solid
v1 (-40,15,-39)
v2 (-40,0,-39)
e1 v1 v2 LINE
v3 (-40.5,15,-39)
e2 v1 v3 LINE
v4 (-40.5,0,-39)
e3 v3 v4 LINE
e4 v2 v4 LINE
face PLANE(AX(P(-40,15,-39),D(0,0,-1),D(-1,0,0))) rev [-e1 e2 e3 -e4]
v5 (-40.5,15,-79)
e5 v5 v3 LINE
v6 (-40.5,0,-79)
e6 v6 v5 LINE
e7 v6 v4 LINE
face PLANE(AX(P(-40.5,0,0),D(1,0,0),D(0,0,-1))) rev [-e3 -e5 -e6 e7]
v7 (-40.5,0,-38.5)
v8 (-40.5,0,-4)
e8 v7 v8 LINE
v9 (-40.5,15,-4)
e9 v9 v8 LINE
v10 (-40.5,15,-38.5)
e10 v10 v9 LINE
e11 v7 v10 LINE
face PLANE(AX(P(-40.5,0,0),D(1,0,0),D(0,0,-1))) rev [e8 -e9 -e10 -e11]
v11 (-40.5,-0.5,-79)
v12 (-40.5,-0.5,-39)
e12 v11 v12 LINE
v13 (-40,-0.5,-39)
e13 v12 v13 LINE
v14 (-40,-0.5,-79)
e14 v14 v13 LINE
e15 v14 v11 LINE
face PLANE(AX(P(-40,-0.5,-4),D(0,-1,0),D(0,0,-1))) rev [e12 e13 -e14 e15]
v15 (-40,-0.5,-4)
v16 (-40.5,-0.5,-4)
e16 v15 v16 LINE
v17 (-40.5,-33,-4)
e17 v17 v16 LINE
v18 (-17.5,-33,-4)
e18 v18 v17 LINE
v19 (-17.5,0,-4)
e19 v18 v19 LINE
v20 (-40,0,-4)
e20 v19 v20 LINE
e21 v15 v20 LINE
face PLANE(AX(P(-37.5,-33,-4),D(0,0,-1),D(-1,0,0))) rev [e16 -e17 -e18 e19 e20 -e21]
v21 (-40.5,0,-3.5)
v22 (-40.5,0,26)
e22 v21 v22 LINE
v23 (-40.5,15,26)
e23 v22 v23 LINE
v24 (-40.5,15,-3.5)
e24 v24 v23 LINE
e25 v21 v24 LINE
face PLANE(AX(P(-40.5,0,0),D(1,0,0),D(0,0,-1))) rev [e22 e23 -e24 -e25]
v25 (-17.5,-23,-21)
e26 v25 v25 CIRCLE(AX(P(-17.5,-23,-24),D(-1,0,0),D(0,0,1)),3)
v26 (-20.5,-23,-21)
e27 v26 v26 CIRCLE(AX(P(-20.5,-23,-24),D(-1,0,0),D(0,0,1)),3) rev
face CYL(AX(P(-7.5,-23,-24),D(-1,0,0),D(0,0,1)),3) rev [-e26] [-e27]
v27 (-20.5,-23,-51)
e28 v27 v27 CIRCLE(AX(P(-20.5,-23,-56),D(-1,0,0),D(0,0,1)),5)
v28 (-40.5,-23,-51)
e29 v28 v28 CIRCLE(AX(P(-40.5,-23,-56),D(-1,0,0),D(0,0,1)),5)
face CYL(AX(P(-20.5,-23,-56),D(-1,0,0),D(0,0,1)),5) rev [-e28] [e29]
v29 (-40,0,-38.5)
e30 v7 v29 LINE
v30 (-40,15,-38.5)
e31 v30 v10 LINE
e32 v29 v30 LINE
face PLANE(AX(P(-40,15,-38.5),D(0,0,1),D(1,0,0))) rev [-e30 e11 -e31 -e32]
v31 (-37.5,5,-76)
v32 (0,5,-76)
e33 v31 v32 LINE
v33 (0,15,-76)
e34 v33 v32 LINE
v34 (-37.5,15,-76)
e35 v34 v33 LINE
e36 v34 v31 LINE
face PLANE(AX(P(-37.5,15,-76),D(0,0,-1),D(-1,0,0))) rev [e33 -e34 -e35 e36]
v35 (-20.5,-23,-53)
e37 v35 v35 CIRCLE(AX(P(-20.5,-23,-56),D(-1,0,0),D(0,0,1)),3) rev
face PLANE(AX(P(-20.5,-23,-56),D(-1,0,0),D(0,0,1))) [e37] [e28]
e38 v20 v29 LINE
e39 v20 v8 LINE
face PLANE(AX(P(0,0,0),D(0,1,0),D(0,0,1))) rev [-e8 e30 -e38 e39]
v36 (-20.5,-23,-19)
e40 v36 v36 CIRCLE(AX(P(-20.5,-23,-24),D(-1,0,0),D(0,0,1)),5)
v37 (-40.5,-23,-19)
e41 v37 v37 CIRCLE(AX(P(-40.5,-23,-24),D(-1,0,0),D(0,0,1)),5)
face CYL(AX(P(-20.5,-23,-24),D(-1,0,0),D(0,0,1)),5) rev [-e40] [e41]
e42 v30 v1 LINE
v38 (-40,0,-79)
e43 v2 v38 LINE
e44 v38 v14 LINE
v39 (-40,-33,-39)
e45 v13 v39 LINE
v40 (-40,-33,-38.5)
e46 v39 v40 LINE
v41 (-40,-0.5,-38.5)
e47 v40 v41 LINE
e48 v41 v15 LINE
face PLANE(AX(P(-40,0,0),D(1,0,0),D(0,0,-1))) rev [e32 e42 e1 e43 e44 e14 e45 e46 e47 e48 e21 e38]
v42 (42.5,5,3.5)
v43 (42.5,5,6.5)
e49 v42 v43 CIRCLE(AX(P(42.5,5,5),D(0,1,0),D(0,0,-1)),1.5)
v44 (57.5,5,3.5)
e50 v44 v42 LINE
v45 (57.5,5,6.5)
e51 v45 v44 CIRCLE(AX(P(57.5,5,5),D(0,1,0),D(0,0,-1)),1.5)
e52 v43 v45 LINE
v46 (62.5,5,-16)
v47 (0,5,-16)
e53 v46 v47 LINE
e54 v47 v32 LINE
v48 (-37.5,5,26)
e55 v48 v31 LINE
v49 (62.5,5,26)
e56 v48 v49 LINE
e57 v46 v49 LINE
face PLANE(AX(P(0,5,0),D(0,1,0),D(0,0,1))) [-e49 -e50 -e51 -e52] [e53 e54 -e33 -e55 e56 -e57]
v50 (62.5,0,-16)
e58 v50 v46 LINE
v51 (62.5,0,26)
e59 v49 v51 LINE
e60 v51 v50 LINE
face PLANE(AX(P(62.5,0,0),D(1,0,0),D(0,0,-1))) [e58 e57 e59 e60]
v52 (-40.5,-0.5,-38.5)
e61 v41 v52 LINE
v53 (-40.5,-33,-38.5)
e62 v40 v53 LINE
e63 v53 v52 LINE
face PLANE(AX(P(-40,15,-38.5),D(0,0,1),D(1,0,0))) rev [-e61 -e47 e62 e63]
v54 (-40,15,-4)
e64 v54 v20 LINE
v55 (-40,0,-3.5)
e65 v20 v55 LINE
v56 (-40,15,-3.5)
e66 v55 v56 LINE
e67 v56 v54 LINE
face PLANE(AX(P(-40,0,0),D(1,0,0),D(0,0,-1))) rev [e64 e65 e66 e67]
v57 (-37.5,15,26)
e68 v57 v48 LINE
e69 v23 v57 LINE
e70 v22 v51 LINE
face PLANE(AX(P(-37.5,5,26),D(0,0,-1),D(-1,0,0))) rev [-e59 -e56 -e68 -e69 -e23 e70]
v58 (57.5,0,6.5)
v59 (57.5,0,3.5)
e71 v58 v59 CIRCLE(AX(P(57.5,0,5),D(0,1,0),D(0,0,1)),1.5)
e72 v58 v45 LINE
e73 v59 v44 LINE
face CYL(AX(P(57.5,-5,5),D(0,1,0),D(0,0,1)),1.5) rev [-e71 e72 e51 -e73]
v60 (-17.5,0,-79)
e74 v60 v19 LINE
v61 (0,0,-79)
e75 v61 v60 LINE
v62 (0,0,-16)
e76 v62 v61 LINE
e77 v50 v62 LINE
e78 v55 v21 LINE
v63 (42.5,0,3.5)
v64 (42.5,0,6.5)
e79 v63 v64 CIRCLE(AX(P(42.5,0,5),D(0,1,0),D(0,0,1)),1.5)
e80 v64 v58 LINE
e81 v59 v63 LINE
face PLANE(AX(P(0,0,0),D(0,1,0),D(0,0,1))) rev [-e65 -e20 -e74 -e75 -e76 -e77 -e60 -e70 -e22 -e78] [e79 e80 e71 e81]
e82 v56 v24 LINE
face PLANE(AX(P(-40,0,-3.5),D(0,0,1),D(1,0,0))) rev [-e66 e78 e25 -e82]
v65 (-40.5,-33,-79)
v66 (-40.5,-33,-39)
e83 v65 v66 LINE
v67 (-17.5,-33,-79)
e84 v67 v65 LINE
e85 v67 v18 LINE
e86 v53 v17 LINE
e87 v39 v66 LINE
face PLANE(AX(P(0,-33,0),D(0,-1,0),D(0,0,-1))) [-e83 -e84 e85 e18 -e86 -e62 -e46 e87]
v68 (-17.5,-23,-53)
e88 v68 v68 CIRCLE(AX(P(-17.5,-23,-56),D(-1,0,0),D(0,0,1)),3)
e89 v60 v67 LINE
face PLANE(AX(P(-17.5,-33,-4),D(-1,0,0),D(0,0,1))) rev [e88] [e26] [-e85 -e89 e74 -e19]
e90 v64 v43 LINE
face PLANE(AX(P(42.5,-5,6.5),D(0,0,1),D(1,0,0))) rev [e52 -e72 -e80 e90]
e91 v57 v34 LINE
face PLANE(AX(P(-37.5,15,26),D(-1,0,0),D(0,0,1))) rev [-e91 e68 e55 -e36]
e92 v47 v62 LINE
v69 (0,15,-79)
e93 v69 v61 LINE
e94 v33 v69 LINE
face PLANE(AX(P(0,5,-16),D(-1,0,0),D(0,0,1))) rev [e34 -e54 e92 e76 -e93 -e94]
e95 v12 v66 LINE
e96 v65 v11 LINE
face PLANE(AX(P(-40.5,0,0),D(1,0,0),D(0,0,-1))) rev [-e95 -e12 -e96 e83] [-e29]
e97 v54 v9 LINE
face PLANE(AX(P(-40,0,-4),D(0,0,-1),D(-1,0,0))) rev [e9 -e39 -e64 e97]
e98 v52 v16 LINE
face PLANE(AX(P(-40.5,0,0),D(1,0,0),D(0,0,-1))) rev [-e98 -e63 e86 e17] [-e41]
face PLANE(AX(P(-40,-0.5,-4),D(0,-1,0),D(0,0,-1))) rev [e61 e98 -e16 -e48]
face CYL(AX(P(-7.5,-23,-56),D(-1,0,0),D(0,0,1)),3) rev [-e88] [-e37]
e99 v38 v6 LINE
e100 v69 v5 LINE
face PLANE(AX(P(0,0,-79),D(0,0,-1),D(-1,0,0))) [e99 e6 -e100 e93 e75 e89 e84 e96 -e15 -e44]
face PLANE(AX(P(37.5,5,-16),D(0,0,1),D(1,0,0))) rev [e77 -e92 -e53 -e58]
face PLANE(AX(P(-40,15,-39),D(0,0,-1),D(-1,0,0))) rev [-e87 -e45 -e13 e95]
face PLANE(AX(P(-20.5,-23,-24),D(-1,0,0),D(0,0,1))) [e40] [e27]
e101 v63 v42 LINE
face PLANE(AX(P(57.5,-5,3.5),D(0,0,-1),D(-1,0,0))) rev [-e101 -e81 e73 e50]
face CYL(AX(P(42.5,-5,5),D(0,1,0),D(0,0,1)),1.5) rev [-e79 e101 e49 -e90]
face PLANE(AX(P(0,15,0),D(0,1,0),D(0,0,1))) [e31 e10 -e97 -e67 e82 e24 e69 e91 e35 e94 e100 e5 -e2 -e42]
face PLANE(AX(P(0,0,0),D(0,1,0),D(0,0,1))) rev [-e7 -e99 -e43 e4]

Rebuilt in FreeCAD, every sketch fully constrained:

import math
import FreeCAD as App
import Part
import Sketcher

V = App.Vector
Q = App.Units.Quantity


def add_polygon(sketch, points):
    """Adds a closed chain of lines whose ends are joined by coincident constraints."""
    first, n = sketch.GeometryCount, len(points)
    for a, b in zip(points, points[1:] + points[:1]):
        sketch.addGeometry(Part.LineSegment(App.Vector(*a, 0), App.Vector(*b, 0)), False)
    for i in range(n):
        sketch.addConstraint(Sketcher.Constraint("Coincident", first + i, 2, first + (i + 1) % n, 1))

doc = App.newDocument("Part")
body = doc.addObject("PartDesign::Body", "Body")

# Sketch on XZ plane
sketch1 = doc.addObject("Sketcher::SketchObject", "Sketch")
body.addObject(sketch1)
sketch1.AttachmentSupport = (doc.XZ_Plane, [""])
sketch1.MapMode = "FlatFace"
add_polygon(sketch1, [(-38, -76), (-38, 26), (38, 26), (38, -16), (0, -16), (0, -76)])  # lines 0-5
sketch1.addConstraint([
    Sketcher.Constraint("Vertical", 0),
    Sketcher.Constraint("Horizontal", 1),
    Sketcher.Constraint("Vertical", 2),
    Sketcher.Constraint("Horizontal", 3),
    Sketcher.Constraint("Vertical", 4),
    Sketcher.Constraint("Horizontal", 5),
    Sketcher.Constraint("PointOnObject", 3, 2, -2),
    Sketcher.Constraint("Equal", 3, 5),
    Sketcher.Constraint("DistanceX", 1, 1, 1, 2, Q("75 mm")),
    Sketcher.Constraint("DistanceY", 0, 1, 0, 2, Q("102 mm")),
    Sketcher.Constraint("DistanceY", 2, 2, 2, 1, Q("42 mm")),
    Sketcher.Constraint("DistanceY", -1, 1, 0, 2, Q("26 mm")),
])
pad1 = doc.addObject("PartDesign::Pad", "Pad")
body.addObject(pad1)
pad1.Profile = sketch1
pad1.Length = 5
pad1.Reversed = True

# Sketch on XZ plane
sketch2 = doc.addObject("Sketcher::SketchObject", "Sketch001")
body.addObject(sketch2)
sketch2.AttachmentSupport = (doc.XZ_Plane, [""])
sketch2.MapMode = "FlatFace"
add_polygon(sketch2, [(-38, -4), (-38, -76), (-18, -76), (-18, -4)])  # lines 0-3
sketch2.addConstraint([
    Sketcher.Constraint("Vertical", 0),
    Sketcher.Constraint("Horizontal", 1),
    Sketcher.Constraint("Vertical", 2),
    Sketcher.Constraint("Horizontal", 3),
    Sketcher.Constraint("DistanceX", 1, 1, 1, 2, Q("20 mm")),
    Sketcher.Constraint("DistanceY", 0, 2, 0, 1, Q("72 mm")),
    Sketcher.Constraint("DistanceY", 0, 2, -1, 1, Q("76 mm")),
    Sketcher.Constraint("DistanceX", 0, 2, -1, 1, Q("37.5 mm")),
])
pad2 = doc.addObject("PartDesign::Pad", "Pad001")
body.addObject(pad2)
pad2.Profile = sketch2
pad2.Length = 33

# Sketch on YZ plane
sketch3 = doc.addObject("Sketcher::SketchObject", "Sketch002")
body.addObject(sketch3)
sketch3.AttachmentSupport = (doc.YZ_Plane, [""])
sketch3.MapMode = "FlatFace"
sketch3.AttachmentOffset = App.Placement(V(0, 0, -37.5), App.Rotation())
sketch3.addGeometry([
    Part.Circle(V(-23, -56, 0), V(0, 0, 1), 3),
    Part.Circle(V(-23, -24, 0), V(0, 0, 1), 3),
], False)
sketch3.addConstraint([
    Sketcher.Constraint("Equal", 0, 1),
    Sketcher.Constraint("Vertical", 0, 3, 1, 3),
    Sketcher.Constraint("Diameter", 0, Q("6 mm")),
    Sketcher.Constraint("DistanceX", 0, 3, -1, 1, Q("23 mm")),
    Sketcher.Constraint("DistanceY", 0, 3, -1, 1, Q("56 mm")),
    Sketcher.Constraint("DistanceY", 1, 3, -1, 1, Q("24 mm")),
])
pocket1 = doc.addObject("PartDesign::Pocket", "Pocket")
body.addObject(pocket1)
pocket1.Profile = sketch3
pocket1.Length = 30
pocket1.Reversed = True

# Sketch on YZ plane
sketch4 = doc.addObject("Sketcher::SketchObject", "Sketch003")
body.addObject(sketch4)
sketch4.AttachmentSupport = (doc.YZ_Plane, [""])
sketch4.MapMode = "FlatFace"
sketch4.AttachmentOffset = App.Placement(V(0, 0, -37.5), App.Rotation())
sketch4.addGeometry([
    Part.Circle(V(-23, -56, 0), V(0, 0, 1), 5),
    Part.Circle(V(-23, -24, 0), V(0, 0, 1), 5),
], False)
sketch4.addConstraint([
    Sketcher.Constraint("Equal", 0, 1),
    Sketcher.Constraint("Vertical", 0, 3, 1, 3),
    Sketcher.Constraint("Diameter", 0, Q("10 mm")),
    Sketcher.Constraint("DistanceX", 0, 3, -1, 1, Q("23 mm")),
    Sketcher.Constraint("DistanceY", 0, 3, -1, 1, Q("56 mm")),
    Sketcher.Constraint("DistanceY", 1, 3, -1, 1, Q("24 mm")),
])
pocket2 = doc.addObject("PartDesign::Pocket", "Pocket001")
body.addObject(pocket2)
pocket2.Profile = sketch4
pocket2.Length = 17
pocket2.Reversed = True

# Sketch on YZ plane
sketch5 = doc.addObject("Sketcher::SketchObject", "Sketch004")
body.addObject(sketch5)
sketch5.AttachmentSupport = (doc.YZ_Plane, [""])
sketch5.MapMode = "FlatFace"
sketch5.AttachmentOffset = App.Placement(V(0, 0, -40.5), App.Rotation())
add_polygon(sketch5, [(5, 26), (5, -76), (-33, -76), (-33, -4), (0, -4), (0, 26)])  # lines 0-5
sketch5.addGeometry(Part.Circle(V(-23, -24, 0), V(0, 0, 1), 5), False)  # 6
sketch5.addGeometry(Part.Circle(V(-23, -56, 0), V(0, 0, 1), 5), False)  # 7
sketch5.addConstraint([
    Sketcher.Constraint("Vertical", 0),
    Sketcher.Constraint("Horizontal", 1),
    Sketcher.Constraint("Vertical", 2),
    Sketcher.Constraint("Horizontal", 3),
    Sketcher.Constraint("Vertical", 4),
    Sketcher.Constraint("Horizontal", 5),
    Sketcher.Constraint("Equal", 6, 7),
    Sketcher.Constraint("PointOnObject", 3, 2, -2),
    Sketcher.Constraint("Vertical", 6, 3, 7, 3),
    Sketcher.Constraint("Diameter", 6, Q("10 mm")),
    Sketcher.Constraint("DistanceX", 1, 2, 1, 1, Q("38 mm")),
    Sketcher.Constraint("DistanceX", 3, 1, 3, 2, Q("33 mm")),
    Sketcher.Constraint("DistanceY", 0, 2, 0, 1, Q("102 mm")),
    Sketcher.Constraint("DistanceY", 2, 1, 2, 2, Q("72 mm")),
    Sketcher.Constraint("DistanceX", 6, 3, -1, 1, Q("23 mm")),
    Sketcher.Constraint("DistanceY", 6, 3, -1, 1, Q("24 mm")),
    Sketcher.Constraint("DistanceY", 7, 3, -1, 1, Q("56 mm")),
    Sketcher.Constraint("DistanceY", 0, 2, -1, 1, Q("76 mm")),
])
pad3 = doc.addObject("PartDesign::Pad", "Pad002")
body.addObject(pad3)
pad3.Profile = sketch5
pad3.Length = 3

# Sketch on XY plane
sketch6 = doc.addObject("Sketcher::SketchObject", "Sketch005")
body.addObject(sketch6)
sketch6.AttachmentSupport = (doc.XY_Plane, [""])
sketch6.MapMode = "FlatFace"
sketch6.AttachmentOffset = App.Placement(V(0, 0, -76), App.Rotation())
add_polygon(sketch6, [(0, 5), (0, 0), (-18, 0), (-18, -33), (-40, -33), (-40, 5)])  # lines 0-5
sketch6.addConstraint([
    Sketcher.Constraint("Vertical", 0),
    Sketcher.Constraint("Horizontal", 1),
    Sketcher.Constraint("Vertical", 2),
    Sketcher.Constraint("Horizontal", 3),
    Sketcher.Constraint("Vertical", 4),
    Sketcher.Constraint("Horizontal", 5),
    Sketcher.Constraint("Coincident", 0, 2, -1, 1),
    Sketcher.Constraint("DistanceX", 3, 2, 3, 1, Q("23 mm")),
    Sketcher.Constraint("DistanceY", 0, 2, 0, 1, Q("5 mm")),
    Sketcher.Constraint("DistanceY", 2, 2, 2, 1, Q("33 mm")),
    Sketcher.Constraint("DistanceX", 1, 2, 1, 1, Q("17.5 mm")),
])
pad4 = doc.addObject("PartDesign::Pad", "Pad003")
body.addObject(pad4)
pad4.Profile = sketch6
pad4.Length = 3
pad4.Reversed = True

# Sketch on XZ plane
sketch7 = doc.addObject("Sketcher::SketchObject", "Sketch006")
body.addObject(sketch7)
sketch7.AttachmentSupport = (doc.XZ_Plane, [""])
sketch7.MapMode = "FlatFace"
sketch7.AttachmentOffset = App.Placement(V(0, 0, -5), App.Rotation())
add_polygon(sketch7, [(0, -76), (0, -79), (-40.5, -79), (-40.5, 26), (-37.5, 26), (-37.5, -76)])  # lines 0-5
sketch7.addConstraint([
    Sketcher.Constraint("Vertical", 0),
    Sketcher.Constraint("Horizontal", 1),
    Sketcher.Constraint("Vertical", 2),
    Sketcher.Constraint("Horizontal", 3),
    Sketcher.Constraint("Vertical", 4),
    Sketcher.Constraint("Horizontal", 5),
    Sketcher.Constraint("PointOnObject", 0, 2, -2),
    Sketcher.Constraint("Equal", 3, 0),
    Sketcher.Constraint("DistanceX", 3, 1, 3, 2, Q("3 mm")),
    Sketcher.Constraint("DistanceY", 2, 1, 2, 2, Q("105 mm")),
    Sketcher.Constraint("DistanceX", 1, 2, 1, 1, Q("40.5 mm")),
    Sketcher.Constraint("DistanceY", 0, 2, -1, 1, Q("79 mm")),
])
pad5 = doc.addObject("PartDesign::Pad", "Pad004")
body.addObject(pad5)
pad5.Profile = sketch7
pad5.Length = 10
pad5.Reversed = True

# Sketch on YZ plane
sketch8 = doc.addObject("Sketcher::SketchObject", "Sketch007")
body.addObject(sketch8)
sketch8.AttachmentSupport = (doc.YZ_Plane, [""])
sketch8.MapMode = "FlatFace"
sketch8.AttachmentOffset = App.Placement(V(0, 0, 37.5), App.Rotation())
add_polygon(sketch8, [(5, 26), (0, 26), (0, -16), (5, -16)])  # lines 0-3
sketch8.addConstraint([
    Sketcher.Constraint("Horizontal", 0),
    Sketcher.Constraint("Vertical", 1),
    Sketcher.Constraint("Horizontal", 2),
    Sketcher.Constraint("Vertical", 3),
    Sketcher.Constraint("PointOnObject", 0, 2, -2),
    Sketcher.Constraint("DistanceX", 0, 2, 0, 1, Q("5 mm")),
    Sketcher.Constraint("DistanceY", 1, 2, 1, 1, Q("42 mm")),
    Sketcher.Constraint("DistanceY", -1, 1, 0, 2, Q("26 mm")),
])
pad6 = doc.addObject("PartDesign::Pad", "Pad005")
body.addObject(pad6)
pad6.Profile = sketch8
pad6.Length = 25

# Sketch on XZ plane
sketch9 = doc.addObject("Sketcher::SketchObject", "Sketch008")
body.addObject(sketch9)
sketch9.AttachmentSupport = (doc.XZ_Plane, [""])
sketch9.MapMode = "FlatFace"
sketch9.AttachmentOffset = App.Placement(V(0, 0, -5), App.Rotation())
sketch9.addGeometry([
    Part.LineSegment(V(57.5, 3.5, 0), V(42.5, 3.5, 0)),
    Part.ArcOfCircle(Part.Circle(V(42.5, 5, 0), V(0, 0, 1), 1.5), math.radians(90), math.radians(270)),
    Part.LineSegment(V(42.5, 6.5, 0), V(57.5, 6.5, 0)),
    Part.ArcOfCircle(Part.Circle(V(57.5, 5, 0), V(0, 0, 1), 1.5), math.radians(-90), math.radians(90)),
], False)
sketch9.addConstraint([
    Sketcher.Constraint("Tangent", 0, 2, 1, 2),
    Sketcher.Constraint("Tangent", 1, 1, 2, 1),
    Sketcher.Constraint("Tangent", 2, 2, 3, 2),
    Sketcher.Constraint("Tangent", 3, 1, 0, 1),
    Sketcher.Constraint("Horizontal", 0),
    Sketcher.Constraint("Horizontal", 2),
    Sketcher.Constraint("Radius", 1, Q("1.5 mm")),
    Sketcher.Constraint("DistanceX", 0, 2, 0, 1, Q("15 mm")),
    Sketcher.Constraint("DistanceY", -1, 1, 1, 3, Q("5 mm")),
    Sketcher.Constraint("DistanceX", -1, 1, 1, 3, Q("42.5 mm")),
])
pocket3 = doc.addObject("PartDesign::Pocket", "Pocket002")
body.addObject(pocket3)
pocket3.Profile = sketch9
pocket3.Length = 10
pocket3.Reversed = True

# Sketch on YZ plane
sketch10 = doc.addObject("Sketcher::SketchObject", "Sketch009")
body.addObject(sketch10)
sketch10.AttachmentSupport = (doc.YZ_Plane, [""])
sketch10.MapMode = "FlatFace"
sketch10.AttachmentOffset = App.Placement(V(0, 0, -40.5), App.Rotation())
add_polygon(sketch10, [(0, -79), (-0.5, -79), (-0.5, -4), (0, -4)])  # lines 0-3
sketch10.addConstraint([
    Sketcher.Constraint("Horizontal", 0),
    Sketcher.Constraint("Vertical", 1),
    Sketcher.Constraint("Horizontal", 2),
    Sketcher.Constraint("Vertical", 3),
    Sketcher.Constraint("PointOnObject", 2, 2, -2),
    Sketcher.Constraint("DistanceY", 1, 1, 1, 2, Q("75 mm")),
    Sketcher.Constraint("DistanceX", 0, 2, 0, 1, Q("0.5 mm")),
    Sketcher.Constraint("DistanceY", 0, 2, -1, 1, Q("79 mm")),
])
pocket4 = doc.addObject("PartDesign::Pocket", "Pocket003")
body.addObject(pocket4)
pocket4.Profile = sketch10
pocket4.Length = 0.5
pocket4.Reversed = True

# Sketch on YZ plane
sketch11 = doc.addObject("Sketcher::SketchObject", "Sketch010")
body.addObject(sketch11)
sketch11.AttachmentSupport = (doc.YZ_Plane, [""])
sketch11.MapMode = "FlatFace"
sketch11.AttachmentOffset = App.Placement(V(0, 0, -40.5), App.Rotation())
add_polygon(sketch11, [(15, -4), (0, -4), (0, -3.5), (15, -3.5)])  # lines 0-3
add_polygon(sketch11, [(15, -39), (-33, -39), (-33, -38.5), (15, -38.5)])  # lines 4-7
sketch11.addConstraint([
    Sketcher.Constraint("Horizontal", 0),
    Sketcher.Constraint("Vertical", 1),
    Sketcher.Constraint("Horizontal", 2),
    Sketcher.Constraint("Vertical", 3),
    Sketcher.Constraint("Horizontal", 4),
    Sketcher.Constraint("Vertical", 5),
    Sketcher.Constraint("Horizontal", 6),
    Sketcher.Constraint("Vertical", 7),
    Sketcher.Constraint("PointOnObject", 0, 2, -2),
    Sketcher.Constraint("Vertical", 3, 2, 6, 2),
    Sketcher.Constraint("Equal", 3, 5),
    Sketcher.Constraint("DistanceX", 0, 2, 0, 1, Q("15 mm")),
    Sketcher.Constraint("DistanceX", 4, 2, 4, 1, Q("48 mm")),
    Sketcher.Constraint("DistanceY", 1, 1, 1, 2, Q("0.5 mm")),
    Sketcher.Constraint("DistanceY", 0, 2, -1, 1, Q("4 mm")),
    Sketcher.Constraint("DistanceY", 4, 2, -1, 1, Q("39 mm")),
])
pocket5 = doc.addObject("PartDesign::Pocket", "Pocket004")
body.addObject(pocket5)
pocket5.Profile = sketch11
pocket5.Length = 0.5
pocket5.Reversed = True

doc.recompute()
